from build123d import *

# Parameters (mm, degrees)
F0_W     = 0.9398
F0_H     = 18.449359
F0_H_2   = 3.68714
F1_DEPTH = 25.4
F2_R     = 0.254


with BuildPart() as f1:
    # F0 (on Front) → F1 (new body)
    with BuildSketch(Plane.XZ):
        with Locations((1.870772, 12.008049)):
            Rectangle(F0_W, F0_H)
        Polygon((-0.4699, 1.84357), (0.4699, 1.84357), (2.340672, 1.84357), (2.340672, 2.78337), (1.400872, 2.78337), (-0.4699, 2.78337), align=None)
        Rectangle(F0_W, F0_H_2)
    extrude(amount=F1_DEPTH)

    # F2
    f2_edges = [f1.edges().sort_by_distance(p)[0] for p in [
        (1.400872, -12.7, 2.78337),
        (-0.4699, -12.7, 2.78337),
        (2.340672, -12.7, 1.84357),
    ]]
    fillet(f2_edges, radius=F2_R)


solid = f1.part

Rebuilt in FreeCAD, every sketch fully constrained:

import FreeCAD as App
import Part
import Sketcher

V = App.Vector
Q = App.Units.Quantity


def edges_at(feature, points):
    """Names of the edges that pass closest to the given points."""
    edges = feature.Shape.Edges
    near = lambda p: min(range(len(edges)), key=lambda i: edges[i].distToShape(Part.Vertex(*p))[0])
    return sorted({f"Edge{near(p) + 1}" for p in points})

doc = App.newDocument("Part")
body = doc.addObject("PartDesign::Body", "Body")

# Sketch on XZ plane
sketch1 = body.newObject("Sketcher::SketchObject", "Sketch")
sketch1.AttachmentSupport = (doc.getObject("XZ_Plane"), [""])
sketch1.MapMode = "FlatFace"
sketch1.addGeometry(Part.LineSegment(V(2.3, 21.2, 0), V(1.4, 21.2, 0)), False)
sketch1.addGeometry(Part.LineSegment(V(1.4, 21.2, 0), V(1.4, 2.8, 0)), False)
sketch1.addGeometry(Part.LineSegment(V(1.4, 2.8, 0), V(-0.5, 2.8, 0)), False)
sketch1.addGeometry(Part.LineSegment(V(-0.5, 2.8, 0), V(-0.5, -1.8, 0)), False)
sketch1.addGeometry(Part.LineSegment(V(-0.5, -1.8, 0), V(0.5, -1.8, 0)), False)
sketch1.addGeometry(Part.LineSegment(V(0.5, -1.8, 0), V(0.5, 1.8, 0)), False)
sketch1.addGeometry(Part.LineSegment(V(0.5, 1.8, 0), V(2.3, 1.8, 0)), False)
sketch1.addGeometry(Part.LineSegment(V(2.3, 1.8, 0), V(2.3, 21.2, 0)), False)
sketch1.addConstraint(Sketcher.Constraint("Coincident", 0, 2, 1, 1))
sketch1.addConstraint(Sketcher.Constraint("Coincident", 1, 2, 2, 1))
sketch1.addConstraint(Sketcher.Constraint("Coincident", 2, 2, 3, 1))
sketch1.addConstraint(Sketcher.Constraint("Coincident", 3, 2, 4, 1))
sketch1.addConstraint(Sketcher.Constraint("Coincident", 4, 2, 5, 1))
sketch1.addConstraint(Sketcher.Constraint("Coincident", 5, 2, 6, 1))
sketch1.addConstraint(Sketcher.Constraint("Coincident", 6, 2, 7, 1))
sketch1.addConstraint(Sketcher.Constraint("Coincident", 7, 2, 0, 1))
sketch1.addConstraint(Sketcher.Constraint("Horizontal", 0))
sketch1.addConstraint(Sketcher.Constraint("Vertical", 1))
sketch1.addConstraint(Sketcher.Constraint("Horizontal", 2))
sketch1.addConstraint(Sketcher.Constraint("Vertical", 3))
sketch1.addConstraint(Sketcher.Constraint("Horizontal", 4))
sketch1.addConstraint(Sketcher.Constraint("Vertical", 5))
sketch1.addConstraint(Sketcher.Constraint("Horizontal", 6))
sketch1.addConstraint(Sketcher.Constraint("Vertical", 7))
sketch1.addConstraint(Sketcher.Constraint("Symmetric", 3, 2, 5, 2, -1, 1))
sketch1.addConstraint(Sketcher.Constraint("Equal", 0, 4))
sketch1.addConstraint(Sketcher.Constraint("DistanceX", 0, 2, 0, 1, Q("0.037 in")))
sketch1.addConstraint(Sketcher.Constraint("DistanceY", 5, 2, 1, 2, Q("0.037 in")))
sketch1.addConstraint(Sketcher.Constraint("DistanceX", 2, 2, 2, 1, 1.870772))
sketch1.addConstraint(Sketcher.Constraint("DistanceY", 1, 2, 1, 1, 18.449358))
sketch1.addConstraint(Sketcher.Constraint("DistanceY", 3, 2, 3, 1, 4.62694))
pad1 = body.newObject("PartDesign::Pad", "Pad")
pad1.Profile = sketch1
pad1.Length = Q("1 in")
doc.recompute()

fillet = body.newObject("PartDesign::Fillet", "Fillet")
fillet.Base = (pad1, edges_at(pad1, [(1.401, -12.7, 2.783), (-0.47, -12.7, 2.783), (2.341, -12.7, 1.844)]))
fillet.Radius = Q("0.01 in")

doc.recompute()
